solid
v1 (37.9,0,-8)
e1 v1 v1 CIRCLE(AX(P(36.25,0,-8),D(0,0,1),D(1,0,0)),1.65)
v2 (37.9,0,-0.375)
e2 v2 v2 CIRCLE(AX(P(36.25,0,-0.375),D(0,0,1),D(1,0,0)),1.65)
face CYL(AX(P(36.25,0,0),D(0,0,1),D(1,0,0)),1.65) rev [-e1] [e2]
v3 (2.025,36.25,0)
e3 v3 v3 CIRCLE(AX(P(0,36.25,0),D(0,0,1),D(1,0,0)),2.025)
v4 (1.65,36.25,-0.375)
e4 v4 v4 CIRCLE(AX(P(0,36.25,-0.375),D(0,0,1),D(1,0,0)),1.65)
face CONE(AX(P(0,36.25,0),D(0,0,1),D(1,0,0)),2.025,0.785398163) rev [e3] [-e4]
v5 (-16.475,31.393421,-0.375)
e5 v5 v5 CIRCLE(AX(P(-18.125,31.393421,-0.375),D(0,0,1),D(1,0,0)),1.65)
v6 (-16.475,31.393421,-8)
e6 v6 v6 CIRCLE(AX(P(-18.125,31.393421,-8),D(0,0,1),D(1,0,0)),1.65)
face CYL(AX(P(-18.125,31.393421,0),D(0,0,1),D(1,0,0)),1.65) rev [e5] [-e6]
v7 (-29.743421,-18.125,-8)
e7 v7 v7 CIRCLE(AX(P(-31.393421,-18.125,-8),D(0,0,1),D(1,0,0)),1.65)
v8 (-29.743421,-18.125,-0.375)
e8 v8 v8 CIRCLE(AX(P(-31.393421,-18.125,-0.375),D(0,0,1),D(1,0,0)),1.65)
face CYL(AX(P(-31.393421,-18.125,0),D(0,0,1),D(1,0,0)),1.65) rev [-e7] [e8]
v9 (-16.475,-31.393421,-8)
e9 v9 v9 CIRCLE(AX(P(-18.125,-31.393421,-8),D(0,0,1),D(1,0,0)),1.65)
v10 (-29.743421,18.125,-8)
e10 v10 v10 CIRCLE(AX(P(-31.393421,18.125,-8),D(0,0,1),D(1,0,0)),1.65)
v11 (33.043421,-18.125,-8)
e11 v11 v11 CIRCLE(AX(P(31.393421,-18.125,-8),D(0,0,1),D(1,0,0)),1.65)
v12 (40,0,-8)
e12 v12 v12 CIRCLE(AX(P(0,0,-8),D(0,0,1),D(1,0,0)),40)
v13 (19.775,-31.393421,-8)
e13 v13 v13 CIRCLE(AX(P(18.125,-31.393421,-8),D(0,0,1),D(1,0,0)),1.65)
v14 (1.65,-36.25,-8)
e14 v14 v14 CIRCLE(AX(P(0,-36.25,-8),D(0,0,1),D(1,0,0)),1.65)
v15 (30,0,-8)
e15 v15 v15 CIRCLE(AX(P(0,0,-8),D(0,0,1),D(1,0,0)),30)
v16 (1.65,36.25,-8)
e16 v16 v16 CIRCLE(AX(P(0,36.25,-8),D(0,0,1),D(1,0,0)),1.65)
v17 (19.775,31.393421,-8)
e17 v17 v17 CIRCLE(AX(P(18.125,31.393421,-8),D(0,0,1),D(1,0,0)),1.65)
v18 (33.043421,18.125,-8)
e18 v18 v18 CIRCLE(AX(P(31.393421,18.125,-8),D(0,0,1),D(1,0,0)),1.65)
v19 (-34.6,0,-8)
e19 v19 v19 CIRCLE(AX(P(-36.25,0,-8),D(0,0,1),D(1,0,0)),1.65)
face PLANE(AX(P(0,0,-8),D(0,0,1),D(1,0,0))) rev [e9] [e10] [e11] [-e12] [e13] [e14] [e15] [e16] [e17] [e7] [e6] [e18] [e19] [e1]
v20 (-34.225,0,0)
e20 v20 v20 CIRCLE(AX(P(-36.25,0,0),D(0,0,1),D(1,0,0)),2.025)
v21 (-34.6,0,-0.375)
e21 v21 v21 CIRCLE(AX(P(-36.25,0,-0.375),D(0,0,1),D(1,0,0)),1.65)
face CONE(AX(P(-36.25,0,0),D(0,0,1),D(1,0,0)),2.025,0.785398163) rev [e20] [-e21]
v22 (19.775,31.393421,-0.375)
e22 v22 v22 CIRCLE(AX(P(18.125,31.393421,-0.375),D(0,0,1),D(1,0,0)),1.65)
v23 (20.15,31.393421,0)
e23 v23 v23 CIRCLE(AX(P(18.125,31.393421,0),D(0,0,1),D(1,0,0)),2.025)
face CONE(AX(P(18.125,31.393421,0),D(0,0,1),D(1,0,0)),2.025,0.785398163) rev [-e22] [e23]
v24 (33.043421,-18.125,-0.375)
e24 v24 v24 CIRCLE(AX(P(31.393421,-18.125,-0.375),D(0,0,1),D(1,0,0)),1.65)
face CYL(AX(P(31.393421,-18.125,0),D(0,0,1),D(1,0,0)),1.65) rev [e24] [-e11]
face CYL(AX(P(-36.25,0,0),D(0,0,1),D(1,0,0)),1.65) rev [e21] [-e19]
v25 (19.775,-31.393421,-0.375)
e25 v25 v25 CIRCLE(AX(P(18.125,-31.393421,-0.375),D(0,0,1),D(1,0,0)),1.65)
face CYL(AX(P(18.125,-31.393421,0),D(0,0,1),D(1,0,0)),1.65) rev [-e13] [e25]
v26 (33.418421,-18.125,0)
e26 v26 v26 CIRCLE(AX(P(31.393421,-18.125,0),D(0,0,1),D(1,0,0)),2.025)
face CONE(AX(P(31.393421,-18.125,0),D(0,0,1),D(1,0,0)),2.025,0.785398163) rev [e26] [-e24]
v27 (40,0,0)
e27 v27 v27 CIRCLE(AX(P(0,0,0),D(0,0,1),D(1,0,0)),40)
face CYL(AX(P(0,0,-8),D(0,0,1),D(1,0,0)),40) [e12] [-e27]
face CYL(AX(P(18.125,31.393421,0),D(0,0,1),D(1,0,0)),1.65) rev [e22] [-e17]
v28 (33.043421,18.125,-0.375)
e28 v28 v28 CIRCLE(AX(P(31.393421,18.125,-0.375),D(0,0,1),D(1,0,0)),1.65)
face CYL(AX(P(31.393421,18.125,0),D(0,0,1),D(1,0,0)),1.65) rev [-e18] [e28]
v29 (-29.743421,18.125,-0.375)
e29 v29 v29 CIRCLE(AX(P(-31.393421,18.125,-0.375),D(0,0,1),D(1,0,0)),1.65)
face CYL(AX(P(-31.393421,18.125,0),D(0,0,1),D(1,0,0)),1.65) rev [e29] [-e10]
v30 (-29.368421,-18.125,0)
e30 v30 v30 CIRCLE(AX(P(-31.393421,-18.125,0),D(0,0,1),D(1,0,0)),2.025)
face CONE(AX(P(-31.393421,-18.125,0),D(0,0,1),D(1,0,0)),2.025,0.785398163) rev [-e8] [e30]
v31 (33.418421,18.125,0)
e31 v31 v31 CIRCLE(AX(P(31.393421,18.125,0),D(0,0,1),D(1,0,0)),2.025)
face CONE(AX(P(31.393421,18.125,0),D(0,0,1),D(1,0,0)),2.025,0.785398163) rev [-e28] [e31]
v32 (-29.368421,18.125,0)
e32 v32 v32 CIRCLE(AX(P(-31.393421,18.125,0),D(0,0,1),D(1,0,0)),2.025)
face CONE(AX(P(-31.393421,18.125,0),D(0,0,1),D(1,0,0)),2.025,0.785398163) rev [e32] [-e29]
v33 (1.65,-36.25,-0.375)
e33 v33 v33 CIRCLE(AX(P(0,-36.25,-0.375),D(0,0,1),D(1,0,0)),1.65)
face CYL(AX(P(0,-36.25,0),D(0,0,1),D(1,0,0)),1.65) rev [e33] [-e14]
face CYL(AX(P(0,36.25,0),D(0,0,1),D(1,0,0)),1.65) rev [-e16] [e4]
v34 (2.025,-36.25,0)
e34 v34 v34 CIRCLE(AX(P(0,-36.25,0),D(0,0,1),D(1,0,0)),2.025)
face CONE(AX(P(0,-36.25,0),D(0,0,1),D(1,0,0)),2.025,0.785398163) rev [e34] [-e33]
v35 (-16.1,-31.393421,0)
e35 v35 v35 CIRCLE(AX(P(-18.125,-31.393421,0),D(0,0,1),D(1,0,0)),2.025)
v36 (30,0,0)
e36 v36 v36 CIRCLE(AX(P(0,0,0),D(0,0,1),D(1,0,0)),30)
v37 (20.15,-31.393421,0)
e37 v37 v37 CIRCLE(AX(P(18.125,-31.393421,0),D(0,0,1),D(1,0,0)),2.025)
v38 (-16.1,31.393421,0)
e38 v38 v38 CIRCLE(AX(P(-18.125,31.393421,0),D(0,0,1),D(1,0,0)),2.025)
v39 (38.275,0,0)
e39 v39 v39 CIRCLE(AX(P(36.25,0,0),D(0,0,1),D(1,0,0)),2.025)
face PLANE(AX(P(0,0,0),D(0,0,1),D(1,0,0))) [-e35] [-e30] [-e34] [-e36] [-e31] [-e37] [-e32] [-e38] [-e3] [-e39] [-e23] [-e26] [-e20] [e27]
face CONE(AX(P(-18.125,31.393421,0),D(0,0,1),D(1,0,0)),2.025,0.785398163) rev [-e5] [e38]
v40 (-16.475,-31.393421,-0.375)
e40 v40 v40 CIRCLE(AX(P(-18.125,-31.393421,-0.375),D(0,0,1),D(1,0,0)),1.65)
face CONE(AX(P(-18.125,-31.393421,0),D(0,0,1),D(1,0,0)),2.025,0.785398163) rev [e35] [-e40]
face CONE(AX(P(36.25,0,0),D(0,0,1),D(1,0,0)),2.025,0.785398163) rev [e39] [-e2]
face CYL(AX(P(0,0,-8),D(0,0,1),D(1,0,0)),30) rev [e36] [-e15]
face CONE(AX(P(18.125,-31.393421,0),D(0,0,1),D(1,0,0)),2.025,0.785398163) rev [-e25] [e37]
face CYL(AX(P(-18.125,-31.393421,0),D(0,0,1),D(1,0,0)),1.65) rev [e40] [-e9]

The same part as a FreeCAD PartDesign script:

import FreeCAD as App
import Part
import Sketcher

doc = App.newDocument("Part")
body = doc.addObject("PartDesign::Body", "Body")

sketch1 = doc.addObject("Sketcher::SketchObject", "Sketch")
body.addObject(sketch1)
sketch1.AttachmentSupport = (doc.XY_Plane, [""])
sketch1.MapMode = "FlatFace"
sketch1.addGeometry(Part.Circle(App.Vector(0, 0, 0), App.Vector(0, 0, 1), 40), False)
sketch1.addGeometry(Part.Circle(App.Vector(0, 0, 0), App.Vector(0, 0, 1), 30), False)
sketch1.addConstraint(Sketcher.Constraint("Coincident", 0, 3, -1, 1))
sketch1.addConstraint(Sketcher.Constraint("Coincident", 1, 3, -1, 1))
sketch1.addConstraint(Sketcher.Constraint("Diameter", 0, 80.0))
sketch1.addConstraint(Sketcher.Constraint("Diameter", 1, 60.0))
pad1 = doc.addObject("PartDesign::Pad", "Pad")
body.addObject(pad1)
pad1.Profile = sketch1
pad1.Length = 8
pad1.Reversed = True

sketch2 = doc.addObject("Sketcher::SketchObject", "Sketch001")
body.addObject(sketch2)
sketch2.AttachmentSupport = (doc.XY_Plane, [""])
sketch2.MapMode = "FlatFace"
sketch2.addGeometry(Part.Circle(App.Vector(0, 36.2, 0), App.Vector(0, 0, 1), 1.6), False)
sketch2.addConstraint(Sketcher.Constraint("PointOnObject", 0, 3, -2))
sketch2.addConstraint(Sketcher.Constraint("Diameter", 0, 3.3))
sketch2.addConstraint(Sketcher.Constraint("DistanceY", -1, 1, 0, 3, 36.25))
doc.recompute()
hole = doc.addObject("PartDesign::Hole", "Hole")
body.addObject(hole)
hole.Profile = sketch2
hole.ThreadType = "None"
hole.Diameter = 3.3
hole.DepthType = "ThroughAll"
hole.HoleCutType = "Countersink"
hole.HoleCutDiameter = 4.05
hole.HoleCutCountersinkAngle = 90
doc.recompute()

polarpattern = doc.addObject("PartDesign::PolarPattern", "PolarPattern")
body.addObject(polarpattern)
polarpattern.Originals = [hole]
polarpattern.Axis = (doc.Z_Axis, [""])
polarpattern.Angle = 360
polarpattern.Occurrences = 12
body.Tip = polarpattern

doc.recompute()
